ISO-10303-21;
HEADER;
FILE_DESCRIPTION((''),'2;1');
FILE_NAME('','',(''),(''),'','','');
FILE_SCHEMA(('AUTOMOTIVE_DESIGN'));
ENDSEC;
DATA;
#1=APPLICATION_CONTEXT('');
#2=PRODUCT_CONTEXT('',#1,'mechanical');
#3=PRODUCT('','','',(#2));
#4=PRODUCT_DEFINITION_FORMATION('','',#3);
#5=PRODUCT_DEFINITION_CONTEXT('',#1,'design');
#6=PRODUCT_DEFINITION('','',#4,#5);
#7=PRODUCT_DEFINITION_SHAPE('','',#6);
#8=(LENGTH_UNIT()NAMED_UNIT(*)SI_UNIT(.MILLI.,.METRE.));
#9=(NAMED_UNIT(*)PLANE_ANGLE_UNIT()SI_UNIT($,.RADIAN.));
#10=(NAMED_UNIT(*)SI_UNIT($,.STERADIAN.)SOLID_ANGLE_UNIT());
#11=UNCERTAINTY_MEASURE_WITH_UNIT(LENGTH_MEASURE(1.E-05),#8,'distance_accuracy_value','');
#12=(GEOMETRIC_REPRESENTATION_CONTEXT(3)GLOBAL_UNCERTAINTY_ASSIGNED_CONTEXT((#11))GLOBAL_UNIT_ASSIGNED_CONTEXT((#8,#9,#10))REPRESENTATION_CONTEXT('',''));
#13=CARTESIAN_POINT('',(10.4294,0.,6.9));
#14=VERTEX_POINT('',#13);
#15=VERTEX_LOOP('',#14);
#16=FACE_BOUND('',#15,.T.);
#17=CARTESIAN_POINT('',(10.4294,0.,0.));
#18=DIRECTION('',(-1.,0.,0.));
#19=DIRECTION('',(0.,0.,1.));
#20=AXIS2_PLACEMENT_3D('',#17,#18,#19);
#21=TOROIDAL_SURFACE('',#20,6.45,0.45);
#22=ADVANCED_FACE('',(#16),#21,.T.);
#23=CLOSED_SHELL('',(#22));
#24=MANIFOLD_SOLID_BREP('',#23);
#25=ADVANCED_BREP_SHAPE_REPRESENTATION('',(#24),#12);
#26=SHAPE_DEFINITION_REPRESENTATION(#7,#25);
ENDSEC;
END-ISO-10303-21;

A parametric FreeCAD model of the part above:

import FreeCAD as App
import Part
import Sketcher

V = App.Vector
Q = App.Units.Quantity

doc = App.newDocument("Part")
body = doc.addObject("PartDesign::Body", "Body")

sketch1 = doc.addObject("Sketcher::SketchObject", "Sketch")
body.addObject(sketch1)
sketch1.AttachmentSupport = (doc.XY_Plane, [""])
sketch1.MapMode = "FlatFace"
sketch1.addGeometry(Part.Circle(V(10.43, 6.45, 0), V(0, 0, 1), 0.45), False)
sketch1.addConstraint(Sketcher.Constraint("Diameter", 0, Q("0.9 mm")))
sketch1.addConstraint(Sketcher.Constraint("DistanceY", -1, 1, 0, 3, Q("6.45 mm")))
sketch1.addConstraint(Sketcher.Constraint("DistanceX", -1, 1, 0, 3, Q("10.4294 mm")))
revolution = doc.addObject("PartDesign::Revolution", "Revolution")
body.addObject(revolution)
revolution.Profile = sketch1
revolution.ReferenceAxis = (sketch1, ["H_Axis"])
revolution.Angle = 360

doc.recompute()
